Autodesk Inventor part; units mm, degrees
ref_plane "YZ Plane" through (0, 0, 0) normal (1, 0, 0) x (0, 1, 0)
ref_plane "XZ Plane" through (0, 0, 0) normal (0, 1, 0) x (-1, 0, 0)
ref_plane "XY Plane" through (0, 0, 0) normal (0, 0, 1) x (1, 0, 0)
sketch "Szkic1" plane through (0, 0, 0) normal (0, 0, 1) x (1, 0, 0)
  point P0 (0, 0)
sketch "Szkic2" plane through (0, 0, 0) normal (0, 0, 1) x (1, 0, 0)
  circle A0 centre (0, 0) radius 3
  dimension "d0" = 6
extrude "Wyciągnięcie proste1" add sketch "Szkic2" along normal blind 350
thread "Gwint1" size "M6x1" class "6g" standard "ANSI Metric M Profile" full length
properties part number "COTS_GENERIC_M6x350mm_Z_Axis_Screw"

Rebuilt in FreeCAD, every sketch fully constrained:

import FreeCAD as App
import Part
import Sketcher

V = App.Vector
Q = App.Units.Quantity

doc = App.newDocument("Part")
body = doc.addObject("PartDesign::Body", "Body")

sketch1 = body.newObject("Sketcher::SketchObject", "Sketch")
sketch1.AttachmentSupport = (doc.getObject("XY_Plane"), [""])
sketch1.MapMode = "FlatFace"
sketch1.addGeometry(Part.Circle(V(0, 0, 0), V(0, 0, 1), 3), False)
sketch1.addConstraint(Sketcher.Constraint("Coincident", 0, 3, -1, 1))
sketch1.addConstraint(Sketcher.Constraint("Diameter", 0, Q("6 mm")))
pad1 = body.newObject("PartDesign::Pad", "Pad")
pad1.Profile = sketch1
pad1.Length = 350

doc.recompute()
